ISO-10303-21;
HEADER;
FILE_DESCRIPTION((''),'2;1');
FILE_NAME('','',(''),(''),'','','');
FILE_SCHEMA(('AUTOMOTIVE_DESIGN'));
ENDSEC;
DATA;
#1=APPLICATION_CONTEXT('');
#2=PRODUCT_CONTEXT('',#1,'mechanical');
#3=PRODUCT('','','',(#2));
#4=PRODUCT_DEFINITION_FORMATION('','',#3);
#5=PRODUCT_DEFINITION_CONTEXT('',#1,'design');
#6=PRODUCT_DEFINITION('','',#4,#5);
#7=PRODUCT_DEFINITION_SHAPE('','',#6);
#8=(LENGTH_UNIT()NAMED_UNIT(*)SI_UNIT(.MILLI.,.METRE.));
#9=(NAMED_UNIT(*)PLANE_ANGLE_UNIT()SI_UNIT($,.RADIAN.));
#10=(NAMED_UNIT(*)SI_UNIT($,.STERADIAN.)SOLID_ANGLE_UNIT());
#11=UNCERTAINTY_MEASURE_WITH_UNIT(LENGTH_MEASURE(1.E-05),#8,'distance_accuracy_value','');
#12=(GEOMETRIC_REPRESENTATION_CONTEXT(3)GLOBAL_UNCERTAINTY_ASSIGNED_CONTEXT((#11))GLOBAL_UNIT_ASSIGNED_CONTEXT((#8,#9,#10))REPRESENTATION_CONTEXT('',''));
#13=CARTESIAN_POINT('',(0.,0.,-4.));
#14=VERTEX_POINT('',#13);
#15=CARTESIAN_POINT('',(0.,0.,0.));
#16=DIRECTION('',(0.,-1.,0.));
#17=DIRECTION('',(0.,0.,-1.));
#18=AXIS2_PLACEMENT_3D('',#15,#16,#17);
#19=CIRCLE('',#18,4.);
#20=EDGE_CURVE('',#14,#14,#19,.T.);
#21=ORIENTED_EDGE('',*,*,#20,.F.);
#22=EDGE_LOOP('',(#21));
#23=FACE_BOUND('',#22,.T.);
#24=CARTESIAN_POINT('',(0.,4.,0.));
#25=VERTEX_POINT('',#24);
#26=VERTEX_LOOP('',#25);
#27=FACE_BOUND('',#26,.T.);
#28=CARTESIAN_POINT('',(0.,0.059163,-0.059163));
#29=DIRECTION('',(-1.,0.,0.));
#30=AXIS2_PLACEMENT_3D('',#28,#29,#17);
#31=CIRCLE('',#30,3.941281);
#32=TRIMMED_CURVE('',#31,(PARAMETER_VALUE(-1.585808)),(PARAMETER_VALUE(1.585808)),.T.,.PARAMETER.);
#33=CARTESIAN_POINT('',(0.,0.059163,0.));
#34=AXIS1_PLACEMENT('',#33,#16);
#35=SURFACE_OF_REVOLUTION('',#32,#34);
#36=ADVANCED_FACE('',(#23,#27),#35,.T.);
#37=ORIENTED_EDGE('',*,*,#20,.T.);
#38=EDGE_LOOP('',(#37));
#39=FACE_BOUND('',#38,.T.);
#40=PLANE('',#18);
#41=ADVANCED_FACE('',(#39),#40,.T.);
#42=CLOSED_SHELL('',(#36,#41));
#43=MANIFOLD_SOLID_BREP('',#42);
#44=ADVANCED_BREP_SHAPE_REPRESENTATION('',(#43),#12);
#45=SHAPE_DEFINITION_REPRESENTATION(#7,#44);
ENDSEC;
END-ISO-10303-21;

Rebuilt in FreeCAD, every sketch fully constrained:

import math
import FreeCAD as App
import Part
import Sketcher
from FreeCAD import Vector
Q = App.Units.Quantity

doc = App.newDocument("Part")
params = doc.addObject("Spreadsheet::Sheet", "Params")
for row, (alias, value) in enumerate([
    ("sketch1_width", "4 mm"),
    ("revolution_angle", "360 deg"),
], start=1):
    params.set(f"A{row}", alias)
    params.set(f"B{row}", "=" + value)
    params.setAlias(f"B{row}", alias)

body = doc.addObject("PartDesign::Body", "Body")

sketch1 = body.newObject("Sketcher::SketchObject", "Sketch")
sketch1.AttachmentSupport = (doc.getObject("XY_Plane"), [""])
sketch1.MapMode = "FlatFace"
sketch1.addGeometry([
    Part.LineSegment(Vector(0, 4, 0), Vector(0, 0, 0)),
    Part.LineSegment(Vector(0, 0, 0), Vector(4, 0, 0)),
    Part.ArcOfCircle(Part.Circle(Vector(0.1, 0.1, 0), Vector(0, 0, 1), 3.9), math.radians(-1), math.radians(91)),
], False)
sketch1.addConstraint([
    Sketcher.Constraint("Coincident", 0, 2, 1, 1),
    Sketcher.Constraint("Coincident", 1, 2, 2, 1),
    Sketcher.Constraint("Coincident", 2, 2, 0, 1),
    Sketcher.Constraint("Vertical", 0),
    Sketcher.Constraint("Horizontal", 1),
    Sketcher.Constraint("Coincident", 0, 2, -1, 1),
    Sketcher.Constraint("Equal", 1, 0),
    Sketcher.Constraint("DistanceX", 1, 1, 1, 2, Q("4 mm")),
    Sketcher.Constraint("Radius", 2, Q("3.941281 mm")),
])
sketch1.setExpression("Constraints[7]", "Params.sketch1_width")
revolution = body.newObject("PartDesign::Revolution", "Revolution")
revolution.Profile = sketch1
revolution.ReferenceAxis = (sketch1, ["V_Axis"])
revolution.setExpression("Angle", "Params.revolution_angle")

doc.recompute()
